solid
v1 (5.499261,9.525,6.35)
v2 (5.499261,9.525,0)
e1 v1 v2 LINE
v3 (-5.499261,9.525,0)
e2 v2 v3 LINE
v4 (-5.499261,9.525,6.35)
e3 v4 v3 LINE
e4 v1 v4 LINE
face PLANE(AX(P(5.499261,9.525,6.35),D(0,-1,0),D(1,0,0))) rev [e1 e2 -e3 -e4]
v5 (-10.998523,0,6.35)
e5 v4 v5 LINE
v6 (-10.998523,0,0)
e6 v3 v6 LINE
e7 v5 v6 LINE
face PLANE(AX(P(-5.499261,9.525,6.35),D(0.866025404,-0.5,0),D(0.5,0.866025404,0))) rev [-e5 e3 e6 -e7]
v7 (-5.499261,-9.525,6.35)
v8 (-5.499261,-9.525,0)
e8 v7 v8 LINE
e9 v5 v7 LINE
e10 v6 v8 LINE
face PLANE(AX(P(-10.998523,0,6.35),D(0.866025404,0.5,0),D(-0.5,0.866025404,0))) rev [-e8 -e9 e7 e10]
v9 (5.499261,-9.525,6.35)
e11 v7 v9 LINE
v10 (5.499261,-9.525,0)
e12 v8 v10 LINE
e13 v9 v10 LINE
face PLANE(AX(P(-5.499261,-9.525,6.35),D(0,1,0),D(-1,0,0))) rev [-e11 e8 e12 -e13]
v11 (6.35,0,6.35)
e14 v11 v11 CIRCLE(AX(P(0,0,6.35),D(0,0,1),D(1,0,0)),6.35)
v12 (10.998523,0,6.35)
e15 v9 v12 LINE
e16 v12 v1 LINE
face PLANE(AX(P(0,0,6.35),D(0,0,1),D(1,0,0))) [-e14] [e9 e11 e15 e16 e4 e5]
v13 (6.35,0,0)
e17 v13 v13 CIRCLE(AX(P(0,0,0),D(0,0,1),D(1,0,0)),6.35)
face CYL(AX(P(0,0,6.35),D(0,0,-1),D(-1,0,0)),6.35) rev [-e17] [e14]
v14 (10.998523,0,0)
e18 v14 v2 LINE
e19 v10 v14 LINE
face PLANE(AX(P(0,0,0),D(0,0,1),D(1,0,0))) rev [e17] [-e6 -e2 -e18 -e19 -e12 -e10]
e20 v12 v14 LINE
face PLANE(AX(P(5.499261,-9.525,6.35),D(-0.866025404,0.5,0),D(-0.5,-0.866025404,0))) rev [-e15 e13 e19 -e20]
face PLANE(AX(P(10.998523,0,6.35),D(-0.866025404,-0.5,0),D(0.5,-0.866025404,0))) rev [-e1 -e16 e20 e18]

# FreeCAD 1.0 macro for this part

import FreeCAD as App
import Part
import Sketcher
Q = App.Units.Quantity

doc = App.newDocument("Part")
body = doc.addObject("PartDesign::Body", "Body")

# Sketch on XY plane
sketch1 = body.newObject("Sketcher::SketchObject", "Sketch")
sketch1.AttachmentSupport = (doc.getObject("XY_Plane"), [""])
sketch1.MapMode = "FlatFace"
sketch1.addGeometry([
    Part.LineSegment(App.Vector(5, -10, 0), App.Vector(11, 0, 0)),  # 0
    Part.LineSegment(App.Vector(11, 0, 0), App.Vector(5, 10, 0)),  # 1
    Part.LineSegment(App.Vector(5, 10, 0), App.Vector(-5, 10, 0)),  # 2
    Part.LineSegment(App.Vector(-5, 10, 0), App.Vector(-11, 0, 0)),  # 3
    Part.LineSegment(App.Vector(-11, 0, 0), App.Vector(-5, -10, 0)),  # 4
    Part.LineSegment(App.Vector(-5, -10, 0), App.Vector(5, -10, 0)),  # 5
    Part.Circle(App.Vector(0, 0, 0), App.Vector(0, 0, 1), 6),  # 6
], False)
sketch1.addConstraint([
    Sketcher.Constraint("Coincident", 0, 2, 1, 1),
    Sketcher.Constraint("Coincident", 1, 2, 2, 1),
    Sketcher.Constraint("Coincident", 2, 2, 3, 1),
    Sketcher.Constraint("Coincident", 3, 2, 4, 1),
    Sketcher.Constraint("Coincident", 4, 2, 5, 1),
    Sketcher.Constraint("Coincident", 5, 2, 0, 1),
    Sketcher.Constraint("Horizontal", 2),
    Sketcher.Constraint("Horizontal", 5),
    Sketcher.Constraint("Coincident", 6, 3, -1, 1),
    Sketcher.Constraint("Symmetric", 0, 2, 3, 2, -1, 1),
    Sketcher.Constraint("Symmetric", 1, 2, 4, 2, -1, 1),
    Sketcher.Constraint("PointOnObject", 0, 2, -1),
    Sketcher.Constraint("Parallel", 0, 3),
    Sketcher.Constraint("Vertical", 2, 2, 4, 2),
    Sketcher.Constraint("Diameter", 6, Q("0.5 in")),
    Sketcher.Constraint("Angle", 0, Q("60 deg")),
    Sketcher.Constraint("DistanceY", 4, 2, 2, 2, Q("0.75 in")),
    Sketcher.Constraint("DistanceX", 2, 2, 2, 1, Q("10.998523 mm")),
])
pad1 = body.newObject("PartDesign::Pad", "Pad")
pad1.Profile = sketch1
pad1.Length = Q("0.25 in")

doc.recompute()
